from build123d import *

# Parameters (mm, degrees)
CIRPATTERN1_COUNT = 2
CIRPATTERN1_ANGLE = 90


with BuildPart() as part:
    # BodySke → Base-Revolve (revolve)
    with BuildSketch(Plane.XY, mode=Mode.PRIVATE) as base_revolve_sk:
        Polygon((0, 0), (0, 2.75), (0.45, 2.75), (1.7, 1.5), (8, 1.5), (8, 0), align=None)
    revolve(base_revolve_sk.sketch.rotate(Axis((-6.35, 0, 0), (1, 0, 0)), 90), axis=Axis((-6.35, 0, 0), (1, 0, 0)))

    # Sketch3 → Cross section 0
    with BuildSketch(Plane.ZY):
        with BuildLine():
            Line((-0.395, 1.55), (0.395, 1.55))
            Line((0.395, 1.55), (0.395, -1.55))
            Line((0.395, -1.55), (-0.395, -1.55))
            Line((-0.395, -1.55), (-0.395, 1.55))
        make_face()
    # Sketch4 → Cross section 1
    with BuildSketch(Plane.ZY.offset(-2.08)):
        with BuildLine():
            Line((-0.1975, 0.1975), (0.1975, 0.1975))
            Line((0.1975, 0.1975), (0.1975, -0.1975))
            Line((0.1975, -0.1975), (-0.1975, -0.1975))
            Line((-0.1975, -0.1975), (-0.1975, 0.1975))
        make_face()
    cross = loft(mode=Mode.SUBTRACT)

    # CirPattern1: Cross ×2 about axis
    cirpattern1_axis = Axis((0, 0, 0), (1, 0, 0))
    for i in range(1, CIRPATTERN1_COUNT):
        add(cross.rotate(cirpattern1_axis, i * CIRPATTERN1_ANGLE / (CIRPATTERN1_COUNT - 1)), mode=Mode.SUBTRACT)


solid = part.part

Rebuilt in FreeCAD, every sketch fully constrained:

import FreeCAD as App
import Part
import Sketcher

V = App.Vector
Q = App.Units.Quantity


def add_polygon(sketch, points):
    """Adds a closed chain of lines whose ends are joined by coincident constraints."""
    first, n = sketch.GeometryCount, len(points)
    for a, b in zip(points, points[1:] + points[:1]):
        sketch.addGeometry(Part.LineSegment(App.Vector(*a, 0), App.Vector(*b, 0)), False)
    for i in range(n):
        sketch.addConstraint(Sketcher.Constraint("Coincident", first + i, 2, first + (i + 1) % n, 1))

doc = App.newDocument("Part")
body = doc.addObject("PartDesign::Body", "Body")

# Sketch on XY plane
sketch1 = body.newObject("Sketcher::SketchObject", "Sketch")
sketch1.AttachmentSupport = (doc.getObject("XY_Plane"), [""])
sketch1.MapMode = "FlatFace"
add_polygon(sketch1, [(0, 2.75), (0, 0), (8, 0), (8, 1.5), (1.7, 1.5), (0.45, 2.75)])  # lines 0-5
sketch1.addConstraint([
    Sketcher.Constraint("Vertical", 0),
    Sketcher.Constraint("Horizontal", 1),
    Sketcher.Constraint("Vertical", 2),
    Sketcher.Constraint("Horizontal", 3),
    Sketcher.Constraint("Horizontal", 5),
    Sketcher.Constraint("Coincident", 0, 2, -1, 1),
    Sketcher.Constraint("DistanceX", 1, 1, 1, 2, 8.0),
    Sketcher.Constraint("Angle", 4, Q("135 deg")),
    Sketcher.Constraint("DistanceX", 3, 2, 3, 1, 6.3),
    Sketcher.Constraint("DistanceY", 2, 1, 2, 2, 1.5),
    Sketcher.Constraint("DistanceX", 5, 2, 5, 1, 0.45),
])
revolution = body.newObject("PartDesign::Revolution", "Revolution")
revolution.Profile = sketch1
revolution.ReferenceAxis = (sketch1, ["H_Axis"])
revolution.Angle = 360

# Sketch on YZ plane
sketch2 = body.newObject("Sketcher::SketchObject", "Sketch001")
sketch2.AttachmentSupport = (doc.getObject("YZ_Plane"), [""])
sketch2.MapMode = "FlatFace"
add_polygon(sketch2, [(1.6, 0.4), (1.6, -0.4), (-1.6, -0.4), (-1.6, 0.4)])  # lines 0-3
sketch2.addConstraint([
    Sketcher.Constraint("Vertical", 0),
    Sketcher.Constraint("Horizontal", 1),
    Sketcher.Constraint("Vertical", 2),
    Sketcher.Constraint("Horizontal", 3),
    Sketcher.Constraint("Symmetric", 0, 2, 2, 2, -1, 1),
    Sketcher.Constraint("DistanceX", 1, 2, 1, 1, 3.1),
    Sketcher.Constraint("DistanceY", 0, 2, 0, 1, 0.79),
])

# Sketch on YZ plane
sketch3 = body.newObject("Sketcher::SketchObject", "Sketch002")
sketch3.AttachmentSupport = (doc.getObject("YZ_Plane"), [""])
sketch3.MapMode = "FlatFace"
sketch3.AttachmentOffset = App.Placement(V(0, 0, 2.08), App.Rotation())
add_polygon(sketch3, [(0.2, 0.2), (0.2, -0.2), (-0.2, -0.2), (-0.2, 0.2)])  # lines 0-3
sketch3.addConstraint([
    Sketcher.Constraint("Vertical", 0),
    Sketcher.Constraint("Horizontal", 1),
    Sketcher.Constraint("Vertical", 2),
    Sketcher.Constraint("Horizontal", 3),
    Sketcher.Constraint("Symmetric", 0, 2, 2, 2, -1, 1),
    Sketcher.Constraint("Equal", 3, 0),
    Sketcher.Constraint("DistanceX", 1, 2, 1, 1, 0.395),
])

subtractiveloft = body.newObject("PartDesign::SubtractiveLoft", "SubtractiveLoft")
subtractiveloft.Profile = sketch2
subtractiveloft.Sections = [sketch3]
doc.recompute()

polarpattern = body.newObject("PartDesign::PolarPattern", "PolarPattern")
polarpattern.Originals = [subtractiveloft]
polarpattern.Axis = (doc.getObject("X_Axis"), [""])
polarpattern.Angle = 90
polarpattern.Occurrences = 2
body.Tip = polarpattern

doc.recompute()
